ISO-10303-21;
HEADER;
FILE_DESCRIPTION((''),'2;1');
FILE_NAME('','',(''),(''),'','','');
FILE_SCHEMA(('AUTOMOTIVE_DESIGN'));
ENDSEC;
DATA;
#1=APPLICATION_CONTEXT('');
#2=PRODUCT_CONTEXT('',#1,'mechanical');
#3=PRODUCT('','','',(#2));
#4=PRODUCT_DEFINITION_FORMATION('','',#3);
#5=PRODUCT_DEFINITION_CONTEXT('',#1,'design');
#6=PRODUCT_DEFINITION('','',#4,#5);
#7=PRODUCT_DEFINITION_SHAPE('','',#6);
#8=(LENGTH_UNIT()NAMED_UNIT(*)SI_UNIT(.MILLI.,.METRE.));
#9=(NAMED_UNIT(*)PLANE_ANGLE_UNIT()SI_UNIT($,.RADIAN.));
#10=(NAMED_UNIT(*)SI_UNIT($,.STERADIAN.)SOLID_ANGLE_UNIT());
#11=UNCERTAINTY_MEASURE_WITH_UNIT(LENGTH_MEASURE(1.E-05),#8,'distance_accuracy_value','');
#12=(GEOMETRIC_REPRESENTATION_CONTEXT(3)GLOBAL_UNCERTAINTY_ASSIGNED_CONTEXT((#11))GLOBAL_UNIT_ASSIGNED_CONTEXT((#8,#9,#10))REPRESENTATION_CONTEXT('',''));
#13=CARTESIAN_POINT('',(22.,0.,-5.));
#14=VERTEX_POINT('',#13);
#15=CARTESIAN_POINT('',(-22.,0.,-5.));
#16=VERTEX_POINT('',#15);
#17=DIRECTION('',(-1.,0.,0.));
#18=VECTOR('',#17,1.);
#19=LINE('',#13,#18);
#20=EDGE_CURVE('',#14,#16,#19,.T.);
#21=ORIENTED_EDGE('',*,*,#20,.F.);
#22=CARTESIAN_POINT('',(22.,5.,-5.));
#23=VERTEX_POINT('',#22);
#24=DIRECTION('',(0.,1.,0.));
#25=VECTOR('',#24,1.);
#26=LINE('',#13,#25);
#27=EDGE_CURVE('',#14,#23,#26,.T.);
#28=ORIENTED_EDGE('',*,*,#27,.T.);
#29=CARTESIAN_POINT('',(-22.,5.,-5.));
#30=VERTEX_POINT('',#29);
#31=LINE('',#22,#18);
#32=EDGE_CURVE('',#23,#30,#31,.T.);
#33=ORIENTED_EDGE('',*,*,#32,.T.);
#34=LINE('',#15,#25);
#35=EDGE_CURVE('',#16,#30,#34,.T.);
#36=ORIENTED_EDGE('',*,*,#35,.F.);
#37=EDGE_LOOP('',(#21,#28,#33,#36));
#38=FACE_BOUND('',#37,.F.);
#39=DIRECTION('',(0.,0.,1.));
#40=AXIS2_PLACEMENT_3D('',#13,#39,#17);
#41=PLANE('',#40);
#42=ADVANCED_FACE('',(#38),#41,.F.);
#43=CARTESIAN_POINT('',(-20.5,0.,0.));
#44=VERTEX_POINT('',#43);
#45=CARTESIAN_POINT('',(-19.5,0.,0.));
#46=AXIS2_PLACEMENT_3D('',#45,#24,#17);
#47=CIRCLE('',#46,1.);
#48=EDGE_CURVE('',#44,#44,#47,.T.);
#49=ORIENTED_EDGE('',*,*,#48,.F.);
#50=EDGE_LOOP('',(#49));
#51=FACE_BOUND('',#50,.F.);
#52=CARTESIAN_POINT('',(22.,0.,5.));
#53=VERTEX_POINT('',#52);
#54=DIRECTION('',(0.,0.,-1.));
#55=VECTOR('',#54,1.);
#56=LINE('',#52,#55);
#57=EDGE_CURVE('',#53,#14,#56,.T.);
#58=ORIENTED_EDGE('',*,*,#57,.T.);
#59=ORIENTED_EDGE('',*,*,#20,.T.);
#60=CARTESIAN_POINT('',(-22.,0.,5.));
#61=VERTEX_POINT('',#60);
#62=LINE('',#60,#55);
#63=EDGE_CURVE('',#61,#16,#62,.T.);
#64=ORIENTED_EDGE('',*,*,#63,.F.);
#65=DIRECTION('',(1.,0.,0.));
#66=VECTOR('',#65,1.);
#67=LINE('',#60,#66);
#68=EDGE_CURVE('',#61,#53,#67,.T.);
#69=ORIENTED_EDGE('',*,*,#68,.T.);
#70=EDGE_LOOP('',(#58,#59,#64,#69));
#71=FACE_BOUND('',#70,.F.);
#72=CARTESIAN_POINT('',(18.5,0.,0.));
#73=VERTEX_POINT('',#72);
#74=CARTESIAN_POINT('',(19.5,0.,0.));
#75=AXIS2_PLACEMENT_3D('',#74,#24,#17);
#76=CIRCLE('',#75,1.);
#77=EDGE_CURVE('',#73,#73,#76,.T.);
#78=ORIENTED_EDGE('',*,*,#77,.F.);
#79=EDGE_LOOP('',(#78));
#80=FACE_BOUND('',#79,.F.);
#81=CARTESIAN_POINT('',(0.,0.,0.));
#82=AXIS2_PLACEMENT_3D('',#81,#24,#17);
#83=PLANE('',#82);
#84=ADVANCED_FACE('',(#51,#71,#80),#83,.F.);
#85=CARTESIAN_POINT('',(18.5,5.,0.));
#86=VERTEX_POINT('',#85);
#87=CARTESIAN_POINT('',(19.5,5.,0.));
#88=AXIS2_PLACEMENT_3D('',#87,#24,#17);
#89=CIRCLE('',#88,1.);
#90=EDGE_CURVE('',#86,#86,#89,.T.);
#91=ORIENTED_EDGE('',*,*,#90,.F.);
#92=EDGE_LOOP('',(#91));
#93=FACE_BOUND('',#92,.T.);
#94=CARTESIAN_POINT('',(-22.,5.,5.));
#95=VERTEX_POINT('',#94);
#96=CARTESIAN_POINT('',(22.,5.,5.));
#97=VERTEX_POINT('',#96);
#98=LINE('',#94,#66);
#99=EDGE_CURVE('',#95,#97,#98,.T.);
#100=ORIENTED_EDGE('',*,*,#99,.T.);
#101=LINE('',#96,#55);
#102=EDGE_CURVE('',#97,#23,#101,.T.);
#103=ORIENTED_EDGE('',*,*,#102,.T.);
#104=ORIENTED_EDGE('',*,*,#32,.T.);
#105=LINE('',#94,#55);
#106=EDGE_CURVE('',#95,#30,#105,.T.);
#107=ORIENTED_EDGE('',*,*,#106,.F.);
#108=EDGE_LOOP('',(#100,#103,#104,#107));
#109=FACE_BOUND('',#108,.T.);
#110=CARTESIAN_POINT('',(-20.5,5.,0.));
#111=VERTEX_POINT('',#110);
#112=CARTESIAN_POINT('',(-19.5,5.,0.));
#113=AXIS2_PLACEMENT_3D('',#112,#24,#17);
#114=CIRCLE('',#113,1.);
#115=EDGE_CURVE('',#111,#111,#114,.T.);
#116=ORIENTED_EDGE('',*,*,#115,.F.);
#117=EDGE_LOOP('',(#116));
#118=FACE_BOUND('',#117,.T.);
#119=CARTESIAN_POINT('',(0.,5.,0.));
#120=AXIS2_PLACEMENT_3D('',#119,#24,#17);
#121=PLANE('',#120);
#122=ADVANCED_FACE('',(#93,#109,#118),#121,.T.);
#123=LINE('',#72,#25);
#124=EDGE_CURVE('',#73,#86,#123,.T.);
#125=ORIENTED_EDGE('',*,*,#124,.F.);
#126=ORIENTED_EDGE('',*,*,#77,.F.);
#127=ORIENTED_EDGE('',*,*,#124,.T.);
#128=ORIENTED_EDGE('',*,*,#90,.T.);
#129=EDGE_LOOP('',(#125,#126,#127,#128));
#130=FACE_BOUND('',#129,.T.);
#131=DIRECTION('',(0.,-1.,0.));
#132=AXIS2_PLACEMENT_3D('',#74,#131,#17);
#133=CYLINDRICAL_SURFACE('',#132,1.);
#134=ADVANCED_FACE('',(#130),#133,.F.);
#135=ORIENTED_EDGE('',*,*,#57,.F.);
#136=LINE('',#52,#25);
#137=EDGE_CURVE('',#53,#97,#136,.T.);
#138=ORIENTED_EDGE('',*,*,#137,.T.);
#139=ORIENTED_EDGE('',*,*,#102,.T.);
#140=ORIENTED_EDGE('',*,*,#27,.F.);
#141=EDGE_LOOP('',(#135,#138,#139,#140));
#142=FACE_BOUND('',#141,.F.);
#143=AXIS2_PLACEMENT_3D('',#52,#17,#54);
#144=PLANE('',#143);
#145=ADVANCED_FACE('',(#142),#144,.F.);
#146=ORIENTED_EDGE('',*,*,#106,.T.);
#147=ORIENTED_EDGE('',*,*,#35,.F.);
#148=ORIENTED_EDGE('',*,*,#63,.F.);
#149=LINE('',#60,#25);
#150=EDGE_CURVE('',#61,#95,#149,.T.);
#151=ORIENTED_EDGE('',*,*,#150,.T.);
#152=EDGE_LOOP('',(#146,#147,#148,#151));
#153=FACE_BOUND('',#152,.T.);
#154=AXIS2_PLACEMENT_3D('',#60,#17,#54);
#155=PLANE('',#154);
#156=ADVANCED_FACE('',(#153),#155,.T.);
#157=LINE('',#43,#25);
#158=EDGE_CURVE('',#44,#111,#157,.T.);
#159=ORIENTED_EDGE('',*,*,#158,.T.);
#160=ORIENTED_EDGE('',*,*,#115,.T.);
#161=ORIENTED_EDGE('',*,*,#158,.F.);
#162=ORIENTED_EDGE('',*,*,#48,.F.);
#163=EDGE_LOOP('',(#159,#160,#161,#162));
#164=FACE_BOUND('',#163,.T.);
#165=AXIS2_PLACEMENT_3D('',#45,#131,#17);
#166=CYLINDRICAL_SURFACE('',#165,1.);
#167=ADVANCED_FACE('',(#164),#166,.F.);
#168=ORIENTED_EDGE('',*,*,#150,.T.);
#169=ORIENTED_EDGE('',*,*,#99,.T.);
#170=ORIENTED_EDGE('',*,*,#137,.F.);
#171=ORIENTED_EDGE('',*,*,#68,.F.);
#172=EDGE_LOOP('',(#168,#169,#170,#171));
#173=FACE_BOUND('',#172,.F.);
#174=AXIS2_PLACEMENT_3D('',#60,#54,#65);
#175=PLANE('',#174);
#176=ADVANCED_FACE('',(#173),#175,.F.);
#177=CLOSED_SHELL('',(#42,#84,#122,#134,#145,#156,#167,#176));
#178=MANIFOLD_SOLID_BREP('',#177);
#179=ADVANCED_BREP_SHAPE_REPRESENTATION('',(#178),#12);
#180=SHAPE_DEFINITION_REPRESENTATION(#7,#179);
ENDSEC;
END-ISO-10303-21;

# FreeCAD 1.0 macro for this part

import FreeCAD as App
import Part
import Sketcher
Q = App.Units.Quantity

doc = App.newDocument("Part")
body = doc.addObject("PartDesign::Body", "Body")

# Sketch on XZ plane
sketch1 = body.newObject("Sketcher::SketchObject", "Sketch")
sketch1.AttachmentSupport = (doc.getObject("XZ_Plane"), [""])
sketch1.MapMode = "FlatFace"
sketch1.addGeometry([
    Part.LineSegment(App.Vector(22, 5, 0), App.Vector(22, -5, 0)),  # 0
    Part.LineSegment(App.Vector(22, -5, 0), App.Vector(-22, -5, 0)),  # 1
    Part.LineSegment(App.Vector(-22, -5, 0), App.Vector(-22, 5, 0)),  # 2
    Part.LineSegment(App.Vector(-22, 5, 0), App.Vector(22, 5, 0)),  # 3
    Part.Circle(App.Vector(19.5, 0, 0), App.Vector(0, 0, 1), 1),  # 4
    Part.Circle(App.Vector(-19.5, 0, 0), App.Vector(0, 0, 1), 1),  # 5
], False)
sketch1.addConstraint([
    Sketcher.Constraint("Coincident", 0, 2, 1, 1),
    Sketcher.Constraint("Coincident", 1, 2, 2, 1),
    Sketcher.Constraint("Coincident", 2, 2, 3, 1),
    Sketcher.Constraint("Coincident", 3, 2, 0, 1),
    Sketcher.Constraint("Vertical", 0),
    Sketcher.Constraint("Horizontal", 1),
    Sketcher.Constraint("Vertical", 2),
    Sketcher.Constraint("Horizontal", 3),
    Sketcher.Constraint("Equal", 4, 5),
    Sketcher.Constraint("Symmetric", 4, 3, 5, 3, -1, 1),
    Sketcher.Constraint("Symmetric", 0, 2, 2, 2, -1, 1),
    Sketcher.Constraint("PointOnObject", 4, 3, -1),
    Sketcher.Constraint("Diameter", 4, Q("2 mm")),
    Sketcher.Constraint("DistanceX", 1, 2, 1, 1, Q("44 mm")),
    Sketcher.Constraint("DistanceY", 0, 2, 0, 1, Q("10 mm")),
    Sketcher.Constraint("DistanceX", 4, 3, 0, 2, Q("2.5 mm")),
])
pad1 = body.newObject("PartDesign::Pad", "Pad")
pad1.Profile = sketch1
pad1.Length = 5
pad1.Reversed = True

doc.recompute()
